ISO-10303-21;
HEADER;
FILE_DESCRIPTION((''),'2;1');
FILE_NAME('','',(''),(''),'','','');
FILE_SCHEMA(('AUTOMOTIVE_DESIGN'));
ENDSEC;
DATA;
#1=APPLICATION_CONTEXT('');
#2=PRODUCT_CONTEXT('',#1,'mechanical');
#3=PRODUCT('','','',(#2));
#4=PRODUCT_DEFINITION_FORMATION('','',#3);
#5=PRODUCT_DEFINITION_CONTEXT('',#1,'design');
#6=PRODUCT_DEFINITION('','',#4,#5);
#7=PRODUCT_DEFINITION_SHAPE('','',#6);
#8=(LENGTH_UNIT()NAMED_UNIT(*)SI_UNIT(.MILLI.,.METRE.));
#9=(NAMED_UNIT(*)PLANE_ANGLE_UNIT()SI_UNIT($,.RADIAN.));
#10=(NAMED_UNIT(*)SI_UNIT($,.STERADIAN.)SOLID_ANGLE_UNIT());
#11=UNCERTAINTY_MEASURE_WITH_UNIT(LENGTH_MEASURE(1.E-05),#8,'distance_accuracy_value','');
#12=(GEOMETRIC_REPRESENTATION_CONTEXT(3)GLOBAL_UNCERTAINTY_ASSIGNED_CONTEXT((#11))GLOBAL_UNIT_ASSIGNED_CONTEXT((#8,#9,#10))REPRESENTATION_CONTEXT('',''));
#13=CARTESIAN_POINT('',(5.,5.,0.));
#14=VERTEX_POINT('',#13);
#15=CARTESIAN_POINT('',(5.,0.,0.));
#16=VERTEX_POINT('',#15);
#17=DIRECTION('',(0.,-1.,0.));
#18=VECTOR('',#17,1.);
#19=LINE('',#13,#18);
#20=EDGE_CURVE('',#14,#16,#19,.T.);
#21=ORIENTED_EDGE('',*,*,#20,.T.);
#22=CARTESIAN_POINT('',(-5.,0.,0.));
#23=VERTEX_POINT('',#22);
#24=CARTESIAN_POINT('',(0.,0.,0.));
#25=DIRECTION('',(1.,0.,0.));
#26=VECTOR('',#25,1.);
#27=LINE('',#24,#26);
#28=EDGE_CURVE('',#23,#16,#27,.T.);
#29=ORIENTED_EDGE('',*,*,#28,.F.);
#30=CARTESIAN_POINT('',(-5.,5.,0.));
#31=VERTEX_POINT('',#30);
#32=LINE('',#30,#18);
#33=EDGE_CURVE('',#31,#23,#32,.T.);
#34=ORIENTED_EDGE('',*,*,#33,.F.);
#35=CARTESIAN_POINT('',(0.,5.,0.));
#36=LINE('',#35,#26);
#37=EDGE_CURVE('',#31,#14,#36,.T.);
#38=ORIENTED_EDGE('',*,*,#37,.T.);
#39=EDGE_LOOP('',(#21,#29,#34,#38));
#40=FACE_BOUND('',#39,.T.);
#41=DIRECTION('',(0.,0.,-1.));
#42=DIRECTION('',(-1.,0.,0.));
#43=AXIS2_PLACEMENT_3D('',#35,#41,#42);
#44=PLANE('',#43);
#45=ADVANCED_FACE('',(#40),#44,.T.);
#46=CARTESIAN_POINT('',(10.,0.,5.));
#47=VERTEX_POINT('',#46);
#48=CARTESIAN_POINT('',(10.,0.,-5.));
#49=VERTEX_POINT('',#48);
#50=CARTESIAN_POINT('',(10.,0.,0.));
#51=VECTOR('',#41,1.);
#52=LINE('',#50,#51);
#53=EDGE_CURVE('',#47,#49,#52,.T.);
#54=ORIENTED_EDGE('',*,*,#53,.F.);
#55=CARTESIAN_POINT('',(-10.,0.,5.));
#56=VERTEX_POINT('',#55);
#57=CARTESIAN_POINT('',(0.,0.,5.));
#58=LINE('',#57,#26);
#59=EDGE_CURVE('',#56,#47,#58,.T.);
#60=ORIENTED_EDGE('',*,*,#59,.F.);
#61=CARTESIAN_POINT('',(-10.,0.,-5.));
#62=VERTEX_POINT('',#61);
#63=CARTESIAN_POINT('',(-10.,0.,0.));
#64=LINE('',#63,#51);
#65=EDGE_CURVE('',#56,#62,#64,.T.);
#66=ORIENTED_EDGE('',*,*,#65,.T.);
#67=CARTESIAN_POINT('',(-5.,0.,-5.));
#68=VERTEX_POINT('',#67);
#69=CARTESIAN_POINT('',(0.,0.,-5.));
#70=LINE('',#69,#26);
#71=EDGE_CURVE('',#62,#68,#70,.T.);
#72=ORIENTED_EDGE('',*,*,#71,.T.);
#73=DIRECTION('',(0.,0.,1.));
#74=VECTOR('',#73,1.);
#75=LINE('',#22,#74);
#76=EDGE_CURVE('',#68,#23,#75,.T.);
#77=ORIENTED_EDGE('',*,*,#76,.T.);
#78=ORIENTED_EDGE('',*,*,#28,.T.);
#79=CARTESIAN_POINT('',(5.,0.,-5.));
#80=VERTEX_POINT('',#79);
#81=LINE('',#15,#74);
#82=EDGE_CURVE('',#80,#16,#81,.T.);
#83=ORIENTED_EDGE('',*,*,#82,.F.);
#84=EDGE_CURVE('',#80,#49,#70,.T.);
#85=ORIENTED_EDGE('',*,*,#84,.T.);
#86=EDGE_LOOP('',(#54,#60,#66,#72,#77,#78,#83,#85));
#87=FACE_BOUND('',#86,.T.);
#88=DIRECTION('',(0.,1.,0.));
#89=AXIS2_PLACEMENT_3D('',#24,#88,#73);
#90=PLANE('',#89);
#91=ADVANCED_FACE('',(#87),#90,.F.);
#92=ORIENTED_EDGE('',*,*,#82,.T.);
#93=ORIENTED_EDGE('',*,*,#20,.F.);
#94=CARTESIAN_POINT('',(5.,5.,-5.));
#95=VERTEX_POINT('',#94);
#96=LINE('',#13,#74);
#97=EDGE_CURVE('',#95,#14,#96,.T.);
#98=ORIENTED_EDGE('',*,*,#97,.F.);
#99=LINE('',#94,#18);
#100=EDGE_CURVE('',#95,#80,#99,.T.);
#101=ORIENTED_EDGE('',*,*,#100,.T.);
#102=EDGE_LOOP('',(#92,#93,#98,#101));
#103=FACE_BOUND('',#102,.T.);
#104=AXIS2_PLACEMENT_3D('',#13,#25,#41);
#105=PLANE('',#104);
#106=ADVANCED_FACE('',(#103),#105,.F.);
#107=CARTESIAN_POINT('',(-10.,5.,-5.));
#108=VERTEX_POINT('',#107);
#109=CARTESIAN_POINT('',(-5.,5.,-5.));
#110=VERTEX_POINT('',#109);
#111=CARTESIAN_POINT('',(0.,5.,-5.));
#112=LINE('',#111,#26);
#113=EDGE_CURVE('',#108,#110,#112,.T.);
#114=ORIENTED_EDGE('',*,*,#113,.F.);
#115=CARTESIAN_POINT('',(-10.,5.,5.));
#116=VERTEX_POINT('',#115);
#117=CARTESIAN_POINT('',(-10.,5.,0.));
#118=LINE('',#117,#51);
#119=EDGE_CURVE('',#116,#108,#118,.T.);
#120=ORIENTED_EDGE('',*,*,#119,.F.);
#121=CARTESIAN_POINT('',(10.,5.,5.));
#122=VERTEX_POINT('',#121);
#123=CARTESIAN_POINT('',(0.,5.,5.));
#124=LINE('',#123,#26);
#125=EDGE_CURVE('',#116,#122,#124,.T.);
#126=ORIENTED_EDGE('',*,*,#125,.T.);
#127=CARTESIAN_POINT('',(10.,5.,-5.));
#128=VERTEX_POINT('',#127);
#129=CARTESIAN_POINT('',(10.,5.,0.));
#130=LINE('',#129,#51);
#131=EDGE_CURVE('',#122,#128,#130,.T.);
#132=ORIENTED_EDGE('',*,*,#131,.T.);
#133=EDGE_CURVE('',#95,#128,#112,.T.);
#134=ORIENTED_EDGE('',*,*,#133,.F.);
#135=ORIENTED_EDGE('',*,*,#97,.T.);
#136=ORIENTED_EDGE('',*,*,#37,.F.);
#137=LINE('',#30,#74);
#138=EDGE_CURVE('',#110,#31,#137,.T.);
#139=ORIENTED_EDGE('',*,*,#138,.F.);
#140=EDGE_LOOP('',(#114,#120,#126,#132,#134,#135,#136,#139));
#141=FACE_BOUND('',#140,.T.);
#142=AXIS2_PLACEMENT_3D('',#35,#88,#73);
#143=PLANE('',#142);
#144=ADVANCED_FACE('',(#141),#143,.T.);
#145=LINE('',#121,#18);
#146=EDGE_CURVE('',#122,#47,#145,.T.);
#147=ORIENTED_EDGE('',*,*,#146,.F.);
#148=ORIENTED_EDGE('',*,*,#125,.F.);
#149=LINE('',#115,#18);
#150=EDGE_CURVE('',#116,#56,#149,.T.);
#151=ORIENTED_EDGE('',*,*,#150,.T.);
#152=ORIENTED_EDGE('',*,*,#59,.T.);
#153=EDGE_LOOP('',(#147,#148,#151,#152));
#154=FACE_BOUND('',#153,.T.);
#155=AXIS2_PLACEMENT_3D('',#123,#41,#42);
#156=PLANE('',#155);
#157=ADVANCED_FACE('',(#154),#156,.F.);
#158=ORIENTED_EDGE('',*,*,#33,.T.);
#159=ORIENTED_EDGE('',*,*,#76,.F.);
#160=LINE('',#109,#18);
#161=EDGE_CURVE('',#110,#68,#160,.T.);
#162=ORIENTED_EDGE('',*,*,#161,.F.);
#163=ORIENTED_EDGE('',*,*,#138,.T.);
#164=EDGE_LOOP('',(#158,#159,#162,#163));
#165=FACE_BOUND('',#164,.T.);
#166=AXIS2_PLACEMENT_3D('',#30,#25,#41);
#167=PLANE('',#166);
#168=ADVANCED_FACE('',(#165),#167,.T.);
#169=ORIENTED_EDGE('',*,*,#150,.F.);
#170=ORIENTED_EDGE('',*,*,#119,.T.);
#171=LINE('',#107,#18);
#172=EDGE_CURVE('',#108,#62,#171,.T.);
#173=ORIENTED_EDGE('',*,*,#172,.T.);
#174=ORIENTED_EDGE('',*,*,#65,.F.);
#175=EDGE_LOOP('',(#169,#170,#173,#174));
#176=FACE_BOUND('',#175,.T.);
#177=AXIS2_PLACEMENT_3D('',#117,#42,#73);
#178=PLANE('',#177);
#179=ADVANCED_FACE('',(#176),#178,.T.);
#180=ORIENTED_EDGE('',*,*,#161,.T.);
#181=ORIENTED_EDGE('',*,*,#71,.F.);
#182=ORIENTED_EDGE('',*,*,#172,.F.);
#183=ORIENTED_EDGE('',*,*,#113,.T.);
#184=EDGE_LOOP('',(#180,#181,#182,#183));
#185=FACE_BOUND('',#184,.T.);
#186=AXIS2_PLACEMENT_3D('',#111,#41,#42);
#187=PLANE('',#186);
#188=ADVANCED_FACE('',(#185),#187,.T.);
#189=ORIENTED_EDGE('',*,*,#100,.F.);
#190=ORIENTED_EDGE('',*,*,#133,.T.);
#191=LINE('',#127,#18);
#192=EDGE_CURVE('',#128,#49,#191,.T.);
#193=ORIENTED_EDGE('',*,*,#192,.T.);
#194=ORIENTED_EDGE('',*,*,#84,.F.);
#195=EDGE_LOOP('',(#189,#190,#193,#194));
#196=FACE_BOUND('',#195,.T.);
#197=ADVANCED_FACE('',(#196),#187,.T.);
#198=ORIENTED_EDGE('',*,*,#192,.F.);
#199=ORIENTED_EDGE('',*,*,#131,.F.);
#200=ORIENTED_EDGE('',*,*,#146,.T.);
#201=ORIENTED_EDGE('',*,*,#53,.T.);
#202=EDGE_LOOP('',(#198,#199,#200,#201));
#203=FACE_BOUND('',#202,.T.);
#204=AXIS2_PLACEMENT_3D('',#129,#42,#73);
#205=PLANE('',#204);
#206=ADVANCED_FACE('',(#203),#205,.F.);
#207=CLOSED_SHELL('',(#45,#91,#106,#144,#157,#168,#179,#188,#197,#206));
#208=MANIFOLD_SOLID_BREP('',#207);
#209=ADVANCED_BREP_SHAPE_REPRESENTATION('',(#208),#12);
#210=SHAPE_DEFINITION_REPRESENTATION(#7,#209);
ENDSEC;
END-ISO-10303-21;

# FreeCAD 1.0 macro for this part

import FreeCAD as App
import Part
import Sketcher
from FreeCAD import Vector
Q = App.Units.Quantity


def add_polygon(sketch, points):
    """Adds a closed chain of lines whose ends are joined by coincident constraints."""
    first, n = sketch.GeometryCount, len(points)
    for a, b in zip(points, points[1:] + points[:1]):
        sketch.addGeometry(Part.LineSegment(App.Vector(*a, 0), App.Vector(*b, 0)), False)
    for i in range(n):
        sketch.addConstraint(Sketcher.Constraint("Coincident", first + i, 2, first + (i + 1) % n, 1))

doc = App.newDocument("Part")
body = doc.addObject("PartDesign::Body", "Body")

sketch1 = doc.addObject("Sketcher::SketchObject", "Sketch")
body.addObject(sketch1)
sketch1.AttachmentSupport = (doc.XZ_Plane, [""])
sketch1.MapMode = "FlatFace"
add_polygon(sketch1, [(-10, -5), (-10, 5), (10, 5), (10, -5), (5, -5), (5, 0), (-5, 0), (-5, -5)])
sketch1.addConstraint(Sketcher.Constraint("Vertical", 0))
sketch1.addConstraint(Sketcher.Constraint("Horizontal", 1))
sketch1.addConstraint(Sketcher.Constraint("Vertical", 2))
sketch1.addConstraint(Sketcher.Constraint("Horizontal", 3))
sketch1.addConstraint(Sketcher.Constraint("Vertical", 4))
sketch1.addConstraint(Sketcher.Constraint("Horizontal", 5))
sketch1.addConstraint(Sketcher.Constraint("Vertical", 6))
sketch1.addConstraint(Sketcher.Constraint("Horizontal", 7))
sketch1.addConstraint(Sketcher.Constraint("Symmetric", 0, 2, 2, 2, -1, 1))
sketch1.addConstraint(Sketcher.Constraint("Symmetric", 4, 2, 5, 2, -1, 1))
sketch1.addConstraint(Sketcher.Constraint("Horizontal", 3, 2, 6, 2))
sketch1.addConstraint(Sketcher.Constraint("Equal", 5, 0))
sketch1.addConstraint(Sketcher.Constraint("Equal", 7, 4))
sketch1.addConstraint(Sketcher.Constraint("DistanceX", 1, 1, 1, 2, Q("20 mm")))
pad1 = doc.addObject("PartDesign::Pad", "Pad")
body.addObject(pad1)
pad1.Profile = sketch1
pad1.Length = 5
pad1.Reversed = True

doc.recompute()
